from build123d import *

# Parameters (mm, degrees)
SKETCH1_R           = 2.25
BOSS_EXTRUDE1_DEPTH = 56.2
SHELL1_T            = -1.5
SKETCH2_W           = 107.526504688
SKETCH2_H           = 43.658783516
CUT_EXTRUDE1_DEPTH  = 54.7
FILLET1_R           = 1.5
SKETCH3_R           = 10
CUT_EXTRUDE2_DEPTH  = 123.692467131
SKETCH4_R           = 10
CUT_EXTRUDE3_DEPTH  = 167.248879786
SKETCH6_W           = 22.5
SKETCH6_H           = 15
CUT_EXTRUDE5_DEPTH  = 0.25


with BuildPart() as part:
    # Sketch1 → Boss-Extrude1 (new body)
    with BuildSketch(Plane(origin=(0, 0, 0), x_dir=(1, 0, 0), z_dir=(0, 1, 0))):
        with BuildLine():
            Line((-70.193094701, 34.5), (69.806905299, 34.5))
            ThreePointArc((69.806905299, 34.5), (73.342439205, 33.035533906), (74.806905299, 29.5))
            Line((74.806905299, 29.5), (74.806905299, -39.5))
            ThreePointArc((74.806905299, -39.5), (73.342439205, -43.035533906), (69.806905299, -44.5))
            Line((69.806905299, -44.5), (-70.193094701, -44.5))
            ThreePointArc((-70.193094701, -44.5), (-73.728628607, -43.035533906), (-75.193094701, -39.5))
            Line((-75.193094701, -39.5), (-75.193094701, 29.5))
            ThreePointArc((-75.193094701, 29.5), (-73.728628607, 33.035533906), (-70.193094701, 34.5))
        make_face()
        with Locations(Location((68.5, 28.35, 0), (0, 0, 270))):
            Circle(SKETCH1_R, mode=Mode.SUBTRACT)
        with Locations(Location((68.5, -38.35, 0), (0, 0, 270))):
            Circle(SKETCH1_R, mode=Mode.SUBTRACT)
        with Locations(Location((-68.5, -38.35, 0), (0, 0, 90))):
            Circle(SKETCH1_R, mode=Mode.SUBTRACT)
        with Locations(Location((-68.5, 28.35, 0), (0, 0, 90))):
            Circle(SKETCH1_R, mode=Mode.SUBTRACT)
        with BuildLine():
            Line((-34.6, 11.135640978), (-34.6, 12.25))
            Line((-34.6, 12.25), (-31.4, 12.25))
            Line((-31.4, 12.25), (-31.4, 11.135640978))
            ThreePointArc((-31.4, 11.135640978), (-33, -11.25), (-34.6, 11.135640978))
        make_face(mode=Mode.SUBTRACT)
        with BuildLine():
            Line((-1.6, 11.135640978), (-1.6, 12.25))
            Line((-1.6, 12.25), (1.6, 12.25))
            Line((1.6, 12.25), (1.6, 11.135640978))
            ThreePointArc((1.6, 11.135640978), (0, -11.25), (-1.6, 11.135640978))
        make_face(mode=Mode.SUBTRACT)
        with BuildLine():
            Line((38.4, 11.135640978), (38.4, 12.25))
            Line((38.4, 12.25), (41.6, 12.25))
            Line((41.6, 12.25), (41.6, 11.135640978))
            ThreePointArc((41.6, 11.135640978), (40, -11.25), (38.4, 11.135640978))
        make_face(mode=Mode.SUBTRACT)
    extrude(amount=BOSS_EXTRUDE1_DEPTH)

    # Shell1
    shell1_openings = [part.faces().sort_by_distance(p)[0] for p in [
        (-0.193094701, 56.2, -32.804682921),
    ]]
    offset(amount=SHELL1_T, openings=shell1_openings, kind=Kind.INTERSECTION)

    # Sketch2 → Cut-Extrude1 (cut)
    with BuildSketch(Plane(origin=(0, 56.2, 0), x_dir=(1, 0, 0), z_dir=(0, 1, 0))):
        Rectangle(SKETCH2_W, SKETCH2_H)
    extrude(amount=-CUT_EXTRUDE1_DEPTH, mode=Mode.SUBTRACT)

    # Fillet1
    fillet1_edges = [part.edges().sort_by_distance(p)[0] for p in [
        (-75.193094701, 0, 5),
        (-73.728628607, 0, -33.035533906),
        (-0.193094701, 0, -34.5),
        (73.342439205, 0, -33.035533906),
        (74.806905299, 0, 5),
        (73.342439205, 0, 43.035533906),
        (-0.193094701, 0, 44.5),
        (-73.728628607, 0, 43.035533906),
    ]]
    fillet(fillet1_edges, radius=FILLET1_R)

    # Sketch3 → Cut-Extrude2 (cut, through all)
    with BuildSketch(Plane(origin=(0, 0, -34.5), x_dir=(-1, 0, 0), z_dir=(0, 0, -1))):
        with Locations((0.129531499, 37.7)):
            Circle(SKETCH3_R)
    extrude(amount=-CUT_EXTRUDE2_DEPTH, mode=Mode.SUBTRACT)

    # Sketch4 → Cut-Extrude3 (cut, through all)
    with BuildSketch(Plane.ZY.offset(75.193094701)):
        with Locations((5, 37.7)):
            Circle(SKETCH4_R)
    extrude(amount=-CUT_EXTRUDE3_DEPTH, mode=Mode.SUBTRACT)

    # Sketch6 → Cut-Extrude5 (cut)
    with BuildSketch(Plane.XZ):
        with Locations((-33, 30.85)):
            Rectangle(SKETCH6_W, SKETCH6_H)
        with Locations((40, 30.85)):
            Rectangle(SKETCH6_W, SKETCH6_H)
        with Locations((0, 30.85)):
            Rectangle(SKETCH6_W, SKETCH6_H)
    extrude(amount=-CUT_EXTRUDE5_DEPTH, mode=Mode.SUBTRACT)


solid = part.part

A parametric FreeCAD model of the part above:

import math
import FreeCAD as App
import Part
import Sketcher

V = App.Vector


def edges_at(feature, points):
    """Names of the edges that pass closest to the given points."""
    edges = feature.Shape.Edges
    near = lambda p: min(range(len(edges)), key=lambda i: edges[i].distToShape(Part.Vertex(*p))[0])
    return sorted({f"Edge{near(p) + 1}" for p in points})


def faces_at(feature, points):
    """Names of the faces that lie closest to the given points."""
    faces = feature.Shape.Faces
    near = lambda p: min(range(len(faces)), key=lambda i: faces[i].distToShape(Part.Vertex(*p))[0])
    return sorted({f"Face{near(p) + 1}" for p in points})

doc = App.newDocument("Part")
body = doc.addObject("PartDesign::Body", "Body")

# Sketch on XZ plane
sketch1 = doc.addObject("Sketcher::SketchObject", "Sketch")
body.addObject(sketch1)
sketch1.AttachmentSupport = (doc.XZ_Plane, [""])
sketch1.MapMode = "FlatFace"
sketch1.addGeometry(Part.LineSegment(V(69.806905, -34.5, 0), V(-70.193095, -34.5, 0)), False)
sketch1.addGeometry(Part.ArcOfCircle(Part.Circle(V(-70.193095, -29.5, 0), V(0, 0, 1), 5), math.radians(180), math.radians(270)), False)
sketch1.addGeometry(Part.LineSegment(V(-75.193095, -29.5, 0), V(-75.193095, 39.5, 0)), False)
sketch1.addGeometry(Part.ArcOfCircle(Part.Circle(V(-70.193095, 39.5, 0), V(0, 0, 1), 5), math.radians(90), math.radians(180)), False)
sketch1.addGeometry(Part.LineSegment(V(-70.193095, 44.5, 0), V(69.806905, 44.5, 0)), False)
sketch1.addGeometry(Part.ArcOfCircle(Part.Circle(V(69.806905, 39.5, 0), V(0, 0, 1), 5), math.radians(0), math.radians(90)), False)
sketch1.addGeometry(Part.LineSegment(V(74.806905, 39.5, 0), V(74.806905, -29.5, 0)), False)
sketch1.addGeometry(Part.ArcOfCircle(Part.Circle(V(69.806905, -29.5, 0), V(0, 0, 1), 5), math.radians(-90), math.radians(0)), False)
sketch1.addGeometry(Part.Circle(V(68.5, 38.35, 0), V(0, 0, 1), 2.25), False)
sketch1.addGeometry(Part.Circle(V(-68.5, 38.35, 0), V(0, 0, 1), 2.25), False)
sketch1.addGeometry(Part.LineSegment(V(38.4, -11.135641, 0), V(38.4, -12.25, 0)), False)
sketch1.addGeometry(Part.LineSegment(V(38.4, -12.25, 0), V(41.6, -12.25, 0)), False)
sketch1.addGeometry(Part.LineSegment(V(41.6, -12.25, 0), V(41.6, -11.135641, 0)), False)
sketch1.addGeometry(Part.ArcOfCircle(Part.Circle(V(40, 0, 0), V(0, 0, 1), 11.25), math.radians(-81.823543), math.radians(261.823543)), False)
sketch1.addGeometry(Part.Circle(V(68.5, -28.35, 0), V(0, 0, 1), 2.25), False)
sketch1.addGeometry(Part.LineSegment(V(-1.6, -11.135641, 0), V(-1.6, -12.25, 0)), False)
sketch1.addGeometry(Part.LineSegment(V(-1.6, -12.25, 0), V(1.6, -12.25, 0)), False)
sketch1.addGeometry(Part.LineSegment(V(1.6, -12.25, 0), V(1.6, -11.135641, 0)), False)
sketch1.addGeometry(Part.ArcOfCircle(Part.Circle(V(0, 0, 0), V(0, 0, 1), 11.25), math.radians(-81.823543), math.radians(261.823543)), False)
sketch1.addGeometry(Part.LineSegment(V(-34.6, -11.135641, 0), V(-34.6, -12.25, 0)), False)
sketch1.addGeometry(Part.LineSegment(V(-34.6, -12.25, 0), V(-31.4, -12.25, 0)), False)
sketch1.addGeometry(Part.LineSegment(V(-31.4, -12.25, 0), V(-31.4, -11.135641, 0)), False)
sketch1.addGeometry(Part.ArcOfCircle(Part.Circle(V(-33, 0, 0), V(0, 0, 1), 11.25), math.radians(-81.823543), math.radians(261.823543)), False)
sketch1.addGeometry(Part.Circle(V(-68.5, -28.35, 0), V(0, 0, 1), 2.25), False)
sketch1.addConstraint(Sketcher.Constraint("Tangent", 0, 2, 1, 2))
sketch1.addConstraint(Sketcher.Constraint("Tangent", 1, 1, 2, 1))
sketch1.addConstraint(Sketcher.Constraint("Tangent", 2, 2, 3, 2))
sketch1.addConstraint(Sketcher.Constraint("Tangent", 3, 1, 4, 1))
sketch1.addConstraint(Sketcher.Constraint("Tangent", 4, 2, 5, 2))
sketch1.addConstraint(Sketcher.Constraint("Tangent", 5, 1, 6, 1))
sketch1.addConstraint(Sketcher.Constraint("Tangent", 6, 2, 7, 2))
sketch1.addConstraint(Sketcher.Constraint("Tangent", 7, 1, 0, 1))
sketch1.addConstraint(Sketcher.Constraint("Coincident", 10, 2, 11, 1))
sketch1.addConstraint(Sketcher.Constraint("Coincident", 11, 2, 12, 1))
sketch1.addConstraint(Sketcher.Constraint("Coincident", 12, 2, 13, 1))
sketch1.addConstraint(Sketcher.Constraint("Coincident", 13, 2, 10, 1))
sketch1.addConstraint(Sketcher.Constraint("Coincident", 15, 2, 16, 1))
sketch1.addConstraint(Sketcher.Constraint("Coincident", 16, 2, 17, 1))
sketch1.addConstraint(Sketcher.Constraint("Coincident", 17, 2, 18, 1))
sketch1.addConstraint(Sketcher.Constraint("Coincident", 18, 2, 15, 1))
sketch1.addConstraint(Sketcher.Constraint("Coincident", 19, 2, 20, 1))
sketch1.addConstraint(Sketcher.Constraint("Coincident", 20, 2, 21, 1))
sketch1.addConstraint(Sketcher.Constraint("Coincident", 21, 2, 22, 1))
sketch1.addConstraint(Sketcher.Constraint("Coincident", 22, 2, 19, 1))
sketch1.addConstraint(Sketcher.Constraint("Horizontal", 0))
sketch1.addConstraint(Sketcher.Constraint("Vertical", 2))
sketch1.addConstraint(Sketcher.Constraint("Horizontal", 4))
sketch1.addConstraint(Sketcher.Constraint("Vertical", 6))
sketch1.addConstraint(Sketcher.Constraint("Vertical", 10))
sketch1.addConstraint(Sketcher.Constraint("Horizontal", 11))
sketch1.addConstraint(Sketcher.Constraint("Vertical", 12))
sketch1.addConstraint(Sketcher.Constraint("Vertical", 15))
sketch1.addConstraint(Sketcher.Constraint("Horizontal", 16))
sketch1.addConstraint(Sketcher.Constraint("Vertical", 17))
sketch1.addConstraint(Sketcher.Constraint("Vertical", 19))
sketch1.addConstraint(Sketcher.Constraint("Horizontal", 20))
sketch1.addConstraint(Sketcher.Constraint("Vertical", 21))
sketch1.addConstraint(Sketcher.Constraint("Coincident", 18, 3, -1, 1))
sketch1.addConstraint(Sketcher.Constraint("Equal", 1, 3))
sketch1.addConstraint(Sketcher.Constraint("Equal", 3, 5))
sketch1.addConstraint(Sketcher.Constraint("Equal", 5, 7))
sketch1.addConstraint(Sketcher.Constraint("Equal", 8, 9))
sketch1.addConstraint(Sketcher.Constraint("Equal", 9, 14))
sketch1.addConstraint(Sketcher.Constraint("Equal", 13, 18))
sketch1.addConstraint(Sketcher.Constraint("Equal", 18, 22))
sketch1.addConstraint(Sketcher.Constraint("Equal", 14, 23))
sketch1.addConstraint(Sketcher.Constraint("Symmetric", 8, 3, 9, 3, -2))
sketch1.addConstraint(Sketcher.Constraint("Symmetric", 14, 3, 23, 3, -2))
sketch1.addConstraint(Sketcher.Constraint("PointOnObject", 13, 3, -1))
sketch1.addConstraint(Sketcher.Constraint("PointOnObject", 22, 3, -1))
sketch1.addConstraint(Sketcher.Constraint("Horizontal", 12, 2, 13, 2))
sketch1.addConstraint(Sketcher.Constraint("Horizontal", 11, 2, 15, 2))
sketch1.addConstraint(Sketcher.Constraint("Horizontal", 13, 2, 17, 2))
sketch1.addConstraint(Sketcher.Constraint("Horizontal", 17, 2, 18, 2))
sketch1.addConstraint(Sketcher.Constraint("Horizontal", 16, 2, 19, 2))
sketch1.addConstraint(Sketcher.Constraint("Horizontal", 18, 2, 21, 2))
sketch1.addConstraint(Sketcher.Constraint("Horizontal", 21, 2, 22, 2))
sketch1.addConstraint(Sketcher.Constraint("Vertical", 8, 3, 14, 3))
sketch1.addConstraint(Sketcher.Constraint("Radius", 1, 5.0))
sketch1.addConstraint(Sketcher.Constraint("Diameter", 8, 4.5))
sketch1.addConstraint(Sketcher.Constraint("DistanceX", 0, 2, 0, 1, 140.0))
sketch1.addConstraint(Sketcher.Constraint("DistanceY", 2, 1, 2, 2, 69.0))
sketch1.addConstraint(Sketcher.Constraint("Radius", 13, 11.25))
sketch1.addConstraint(Sketcher.Constraint("DistanceX", 11, 1, 11, 2, 3.2))
sketch1.addConstraint(Sketcher.Constraint("DistanceX", -1, 1, 13, 3, 40.0))
sketch1.addConstraint(Sketcher.Constraint("DistanceX", 22, 3, -1, 1, 33.0))
sketch1.addConstraint(Sketcher.Constraint("DistanceX", 9, 3, 8, 3, 137.0))
sketch1.addConstraint(Sketcher.Constraint("DistanceY", 1, 3, -1, 1, 29.5))
sketch1.addConstraint(Sketcher.Constraint("DistanceY", 14, 3, 8, 3, 66.7))
sketch1.addConstraint(Sketcher.Constraint("DistanceY", 14, 3, 10, 2, 16.1))
sketch1.addConstraint(Sketcher.Constraint("DistanceY", -1, 1, 8, 3, 38.35))
sketch1.addConstraint(Sketcher.Constraint("DistanceX", 1, 3, -1, 1, 70.193095))
pad1 = doc.addObject("PartDesign::Pad", "Pad")
body.addObject(pad1)
pad1.Profile = sketch1
pad1.Length = 56.2
pad1.Reversed = True
doc.recompute()

thickness = doc.addObject("PartDesign::Thickness", "Thickness")
body.addObject(thickness)
thickness.Base = (pad1, faces_at(pad1, [(29.807, 56.2, 20.8)]))
thickness.Value = 1.5
thickness.Reversed = True
thickness.Join = "Intersection"

# Sketch on XZ plane
sketch2 = doc.addObject("Sketcher::SketchObject", "Sketch001")
body.addObject(sketch2)
sketch2.AttachmentSupport = (doc.XZ_Plane, [""])
sketch2.MapMode = "FlatFace"
sketch2.AttachmentOffset = App.Placement(V(0, 0, -56.2), App.Rotation())
sketch2.addGeometry(Part.LineSegment(V(-53.763252, -21.829392, 0), V(-53.763252, 21.829392, 0)), False)
sketch2.addGeometry(Part.LineSegment(V(-53.763252, 21.829392, 0), V(53.763252, 21.829392, 0)), False)
sketch2.addGeometry(Part.LineSegment(V(53.763252, 21.829392, 0), V(53.763252, -21.829392, 0)), False)
sketch2.addGeometry(Part.LineSegment(V(53.763252, -21.829392, 0), V(-53.763252, -21.829392, 0)), False)
sketch2.addConstraint(Sketcher.Constraint("Coincident", 0, 2, 1, 1))
sketch2.addConstraint(Sketcher.Constraint("Coincident", 1, 2, 2, 1))
sketch2.addConstraint(Sketcher.Constraint("Coincident", 2, 2, 3, 1))
sketch2.addConstraint(Sketcher.Constraint("Coincident", 3, 2, 0, 1))
sketch2.addConstraint(Sketcher.Constraint("Vertical", 0))
sketch2.addConstraint(Sketcher.Constraint("Horizontal", 1))
sketch2.addConstraint(Sketcher.Constraint("Vertical", 2))
sketch2.addConstraint(Sketcher.Constraint("Horizontal", 3))
sketch2.addConstraint(Sketcher.Constraint("Symmetric", 0, 2, 2, 2, -1, 1))
sketch2.addConstraint(Sketcher.Constraint("DistanceX", 1, 1, 1, 2, 107.526505))
sketch2.addConstraint(Sketcher.Constraint("DistanceY", 0, 1, 0, 2, 43.658784))
pocket1 = doc.addObject("PartDesign::Pocket", "Pocket")
body.addObject(pocket1)
pocket1.Profile = sketch2
pocket1.Length = 54.7
pocket1.Reversed = True
doc.recompute()

fillet = doc.addObject("PartDesign::Fillet", "Fillet")
body.addObject(fillet)
fillet.Base = (pocket1, edges_at(pocket1, [
    (-75.193, 0, 5),
    (-73.729, 0, -33.036),
    (-0.193, 0, -34.5),
    (73.342, 0, -33.036),
    (74.807, 0, 5),
    (73.342, 0, 43.036),
    (-0.193, 0, 44.5),
    (-73.729, 0, 43.036),
]))
fillet.Radius = 1.5

# Sketch on XY plane
sketch3 = doc.addObject("Sketcher::SketchObject", "Sketch002")
body.addObject(sketch3)
sketch3.AttachmentSupport = (doc.XY_Plane, [""])
sketch3.MapMode = "FlatFace"
sketch3.AttachmentOffset = App.Placement(V(0, 0, -34.5), App.Rotation())
sketch3.addGeometry(Part.Circle(V(-0.129531, 37.7, 0), V(0, 0, 1), 10), False)
sketch3.addConstraint(Sketcher.Constraint("Diameter", 0, 20.0))
sketch3.addConstraint(Sketcher.Constraint("DistanceY", -1, 1, 0, 3, 37.7))
sketch3.addConstraint(Sketcher.Constraint("DistanceX", 0, 3, -1, 1, 0.129531))
pocket2 = doc.addObject("PartDesign::Pocket", "Pocket001")
body.addObject(pocket2)
pocket2.Profile = sketch3
pocket2.Type = "ThroughAll"
pocket2.Reversed = True

# Sketch on YZ plane
sketch4 = doc.addObject("Sketcher::SketchObject", "Sketch003")
body.addObject(sketch4)
sketch4.AttachmentSupport = (doc.YZ_Plane, [""])
sketch4.MapMode = "FlatFace"
sketch4.AttachmentOffset = App.Placement(V(0, 0, -75.193095), App.Rotation())
sketch4.addGeometry(Part.Circle(V(37.7, 5, 0), V(0, 0, 1), 10), False)
sketch4.addConstraint(Sketcher.Constraint("Diameter", 0, 20.0))
sketch4.addConstraint(Sketcher.Constraint("DistanceY", -1, 1, 0, 3, 5.0))
sketch4.addConstraint(Sketcher.Constraint("DistanceX", -1, 1, 0, 3, 37.7))
pocket3 = doc.addObject("PartDesign::Pocket", "Pocket002")
body.addObject(pocket3)
pocket3.Profile = sketch4
pocket3.Type = "ThroughAll"
pocket3.Reversed = True

# Sketch on XZ plane
sketch5 = doc.addObject("Sketcher::SketchObject", "Sketch004")
body.addObject(sketch5)
sketch5.AttachmentSupport = (doc.XZ_Plane, [""])
sketch5.MapMode = "FlatFace"
sketch5.addGeometry(Part.LineSegment(V(-44.25, 38.35, 0), V(-44.25, 23.35, 0)), False)
sketch5.addGeometry(Part.LineSegment(V(-44.25, 23.35, 0), V(-21.75, 23.35, 0)), False)
sketch5.addGeometry(Part.LineSegment(V(-21.75, 23.35, 0), V(-21.75, 38.35, 0)), False)
sketch5.addGeometry(Part.LineSegment(V(-21.75, 38.35, 0), V(-44.25, 38.35, 0)), False)
sketch5.addGeometry(Part.LineSegment(V(28.75, 38.35, 0), V(28.75, 23.35, 0)), False)
sketch5.addGeometry(Part.LineSegment(V(28.75, 23.35, 0), V(51.25, 23.35, 0)), False)
sketch5.addGeometry(Part.LineSegment(V(51.25, 23.35, 0), V(51.25, 38.35, 0)), False)
sketch5.addGeometry(Part.LineSegment(V(51.25, 38.35, 0), V(28.75, 38.35, 0)), False)
sketch5.addGeometry(Part.LineSegment(V(-11.25, 38.35, 0), V(-11.25, 23.35, 0)), False)
sketch5.addGeometry(Part.LineSegment(V(-11.25, 23.35, 0), V(11.25, 23.35, 0)), False)
sketch5.addGeometry(Part.LineSegment(V(11.25, 23.35, 0), V(11.25, 38.35, 0)), False)
sketch5.addGeometry(Part.LineSegment(V(11.25, 38.35, 0), V(-11.25, 38.35, 0)), False)
sketch5.addConstraint(Sketcher.Constraint("Coincident", 0, 2, 1, 1))
sketch5.addConstraint(Sketcher.Constraint("Coincident", 1, 2, 2, 1))
sketch5.addConstraint(Sketcher.Constraint("Coincident", 2, 2, 3, 1))
sketch5.addConstraint(Sketcher.Constraint("Coincident", 3, 2, 0, 1))
sketch5.addConstraint(Sketcher.Constraint("Coincident", 4, 2, 5, 1))
sketch5.addConstraint(Sketcher.Constraint("Coincident", 5, 2, 6, 1))
sketch5.addConstraint(Sketcher.Constraint("Coincident", 6, 2, 7, 1))
sketch5.addConstraint(Sketcher.Constraint("Coincident", 7, 2, 4, 1))
sketch5.addConstraint(Sketcher.Constraint("Coincident", 8, 2, 9, 1))
sketch5.addConstraint(Sketcher.Constraint("Coincident", 9, 2, 10, 1))
sketch5.addConstraint(Sketcher.Constraint("Coincident", 10, 2, 11, 1))
sketch5.addConstraint(Sketcher.Constraint("Coincident", 11, 2, 8, 1))
sketch5.addConstraint(Sketcher.Constraint("Vertical", 0))
sketch5.addConstraint(Sketcher.Constraint("Horizontal", 1))
sketch5.addConstraint(Sketcher.Constraint("Vertical", 2))
sketch5.addConstraint(Sketcher.Constraint("Horizontal", 3))
sketch5.addConstraint(Sketcher.Constraint("Vertical", 4))
sketch5.addConstraint(Sketcher.Constraint("Horizontal", 5))
sketch5.addConstraint(Sketcher.Constraint("Vertical", 6))
sketch5.addConstraint(Sketcher.Constraint("Horizontal", 7))
sketch5.addConstraint(Sketcher.Constraint("Vertical", 8))
sketch5.addConstraint(Sketcher.Constraint("Horizontal", 9))
sketch5.addConstraint(Sketcher.Constraint("Vertical", 10))
sketch5.addConstraint(Sketcher.Constraint("Horizontal", 11))
sketch5.addConstraint(Sketcher.Constraint("Horizontal", 1, 2, 4, 2))
sketch5.addConstraint(Sketcher.Constraint("Horizontal", 3, 2, 6, 2))
sketch5.addConstraint(Sketcher.Constraint("Horizontal", 5, 2, 8, 2))
sketch5.addConstraint(Sketcher.Constraint("Horizontal", 7, 2, 10, 2))
sketch5.addConstraint(Sketcher.Constraint("Equal", 3, 5))
sketch5.addConstraint(Sketcher.Constraint("Equal", 7, 9))
sketch5.addConstraint(Sketcher.Constraint("DistanceY", 0, 2, 0, 1, 15.0))
sketch5.addConstraint(Sketcher.Constraint("DistanceX", 1, 1, 1, 2, 22.5))
sketch5.addConstraint(Sketcher.Constraint("DistanceX", 0, 2, 4, 2, 73.0))
sketch5.addConstraint(Sketcher.Constraint("DistanceX", 0, 2, 8, 2, 33.0))
sketch5.addConstraint(Sketcher.Constraint("DistanceX", 0, 2, -1, 1, 44.25))
sketch5.addConstraint(Sketcher.Constraint("DistanceY", -1, 1, 0, 2, 23.35))
pocket4 = doc.addObject("PartDesign::Pocket", "Pocket003")
body.addObject(pocket4)
pocket4.Profile = sketch5
pocket4.Length = 0.25

doc.recompute()
